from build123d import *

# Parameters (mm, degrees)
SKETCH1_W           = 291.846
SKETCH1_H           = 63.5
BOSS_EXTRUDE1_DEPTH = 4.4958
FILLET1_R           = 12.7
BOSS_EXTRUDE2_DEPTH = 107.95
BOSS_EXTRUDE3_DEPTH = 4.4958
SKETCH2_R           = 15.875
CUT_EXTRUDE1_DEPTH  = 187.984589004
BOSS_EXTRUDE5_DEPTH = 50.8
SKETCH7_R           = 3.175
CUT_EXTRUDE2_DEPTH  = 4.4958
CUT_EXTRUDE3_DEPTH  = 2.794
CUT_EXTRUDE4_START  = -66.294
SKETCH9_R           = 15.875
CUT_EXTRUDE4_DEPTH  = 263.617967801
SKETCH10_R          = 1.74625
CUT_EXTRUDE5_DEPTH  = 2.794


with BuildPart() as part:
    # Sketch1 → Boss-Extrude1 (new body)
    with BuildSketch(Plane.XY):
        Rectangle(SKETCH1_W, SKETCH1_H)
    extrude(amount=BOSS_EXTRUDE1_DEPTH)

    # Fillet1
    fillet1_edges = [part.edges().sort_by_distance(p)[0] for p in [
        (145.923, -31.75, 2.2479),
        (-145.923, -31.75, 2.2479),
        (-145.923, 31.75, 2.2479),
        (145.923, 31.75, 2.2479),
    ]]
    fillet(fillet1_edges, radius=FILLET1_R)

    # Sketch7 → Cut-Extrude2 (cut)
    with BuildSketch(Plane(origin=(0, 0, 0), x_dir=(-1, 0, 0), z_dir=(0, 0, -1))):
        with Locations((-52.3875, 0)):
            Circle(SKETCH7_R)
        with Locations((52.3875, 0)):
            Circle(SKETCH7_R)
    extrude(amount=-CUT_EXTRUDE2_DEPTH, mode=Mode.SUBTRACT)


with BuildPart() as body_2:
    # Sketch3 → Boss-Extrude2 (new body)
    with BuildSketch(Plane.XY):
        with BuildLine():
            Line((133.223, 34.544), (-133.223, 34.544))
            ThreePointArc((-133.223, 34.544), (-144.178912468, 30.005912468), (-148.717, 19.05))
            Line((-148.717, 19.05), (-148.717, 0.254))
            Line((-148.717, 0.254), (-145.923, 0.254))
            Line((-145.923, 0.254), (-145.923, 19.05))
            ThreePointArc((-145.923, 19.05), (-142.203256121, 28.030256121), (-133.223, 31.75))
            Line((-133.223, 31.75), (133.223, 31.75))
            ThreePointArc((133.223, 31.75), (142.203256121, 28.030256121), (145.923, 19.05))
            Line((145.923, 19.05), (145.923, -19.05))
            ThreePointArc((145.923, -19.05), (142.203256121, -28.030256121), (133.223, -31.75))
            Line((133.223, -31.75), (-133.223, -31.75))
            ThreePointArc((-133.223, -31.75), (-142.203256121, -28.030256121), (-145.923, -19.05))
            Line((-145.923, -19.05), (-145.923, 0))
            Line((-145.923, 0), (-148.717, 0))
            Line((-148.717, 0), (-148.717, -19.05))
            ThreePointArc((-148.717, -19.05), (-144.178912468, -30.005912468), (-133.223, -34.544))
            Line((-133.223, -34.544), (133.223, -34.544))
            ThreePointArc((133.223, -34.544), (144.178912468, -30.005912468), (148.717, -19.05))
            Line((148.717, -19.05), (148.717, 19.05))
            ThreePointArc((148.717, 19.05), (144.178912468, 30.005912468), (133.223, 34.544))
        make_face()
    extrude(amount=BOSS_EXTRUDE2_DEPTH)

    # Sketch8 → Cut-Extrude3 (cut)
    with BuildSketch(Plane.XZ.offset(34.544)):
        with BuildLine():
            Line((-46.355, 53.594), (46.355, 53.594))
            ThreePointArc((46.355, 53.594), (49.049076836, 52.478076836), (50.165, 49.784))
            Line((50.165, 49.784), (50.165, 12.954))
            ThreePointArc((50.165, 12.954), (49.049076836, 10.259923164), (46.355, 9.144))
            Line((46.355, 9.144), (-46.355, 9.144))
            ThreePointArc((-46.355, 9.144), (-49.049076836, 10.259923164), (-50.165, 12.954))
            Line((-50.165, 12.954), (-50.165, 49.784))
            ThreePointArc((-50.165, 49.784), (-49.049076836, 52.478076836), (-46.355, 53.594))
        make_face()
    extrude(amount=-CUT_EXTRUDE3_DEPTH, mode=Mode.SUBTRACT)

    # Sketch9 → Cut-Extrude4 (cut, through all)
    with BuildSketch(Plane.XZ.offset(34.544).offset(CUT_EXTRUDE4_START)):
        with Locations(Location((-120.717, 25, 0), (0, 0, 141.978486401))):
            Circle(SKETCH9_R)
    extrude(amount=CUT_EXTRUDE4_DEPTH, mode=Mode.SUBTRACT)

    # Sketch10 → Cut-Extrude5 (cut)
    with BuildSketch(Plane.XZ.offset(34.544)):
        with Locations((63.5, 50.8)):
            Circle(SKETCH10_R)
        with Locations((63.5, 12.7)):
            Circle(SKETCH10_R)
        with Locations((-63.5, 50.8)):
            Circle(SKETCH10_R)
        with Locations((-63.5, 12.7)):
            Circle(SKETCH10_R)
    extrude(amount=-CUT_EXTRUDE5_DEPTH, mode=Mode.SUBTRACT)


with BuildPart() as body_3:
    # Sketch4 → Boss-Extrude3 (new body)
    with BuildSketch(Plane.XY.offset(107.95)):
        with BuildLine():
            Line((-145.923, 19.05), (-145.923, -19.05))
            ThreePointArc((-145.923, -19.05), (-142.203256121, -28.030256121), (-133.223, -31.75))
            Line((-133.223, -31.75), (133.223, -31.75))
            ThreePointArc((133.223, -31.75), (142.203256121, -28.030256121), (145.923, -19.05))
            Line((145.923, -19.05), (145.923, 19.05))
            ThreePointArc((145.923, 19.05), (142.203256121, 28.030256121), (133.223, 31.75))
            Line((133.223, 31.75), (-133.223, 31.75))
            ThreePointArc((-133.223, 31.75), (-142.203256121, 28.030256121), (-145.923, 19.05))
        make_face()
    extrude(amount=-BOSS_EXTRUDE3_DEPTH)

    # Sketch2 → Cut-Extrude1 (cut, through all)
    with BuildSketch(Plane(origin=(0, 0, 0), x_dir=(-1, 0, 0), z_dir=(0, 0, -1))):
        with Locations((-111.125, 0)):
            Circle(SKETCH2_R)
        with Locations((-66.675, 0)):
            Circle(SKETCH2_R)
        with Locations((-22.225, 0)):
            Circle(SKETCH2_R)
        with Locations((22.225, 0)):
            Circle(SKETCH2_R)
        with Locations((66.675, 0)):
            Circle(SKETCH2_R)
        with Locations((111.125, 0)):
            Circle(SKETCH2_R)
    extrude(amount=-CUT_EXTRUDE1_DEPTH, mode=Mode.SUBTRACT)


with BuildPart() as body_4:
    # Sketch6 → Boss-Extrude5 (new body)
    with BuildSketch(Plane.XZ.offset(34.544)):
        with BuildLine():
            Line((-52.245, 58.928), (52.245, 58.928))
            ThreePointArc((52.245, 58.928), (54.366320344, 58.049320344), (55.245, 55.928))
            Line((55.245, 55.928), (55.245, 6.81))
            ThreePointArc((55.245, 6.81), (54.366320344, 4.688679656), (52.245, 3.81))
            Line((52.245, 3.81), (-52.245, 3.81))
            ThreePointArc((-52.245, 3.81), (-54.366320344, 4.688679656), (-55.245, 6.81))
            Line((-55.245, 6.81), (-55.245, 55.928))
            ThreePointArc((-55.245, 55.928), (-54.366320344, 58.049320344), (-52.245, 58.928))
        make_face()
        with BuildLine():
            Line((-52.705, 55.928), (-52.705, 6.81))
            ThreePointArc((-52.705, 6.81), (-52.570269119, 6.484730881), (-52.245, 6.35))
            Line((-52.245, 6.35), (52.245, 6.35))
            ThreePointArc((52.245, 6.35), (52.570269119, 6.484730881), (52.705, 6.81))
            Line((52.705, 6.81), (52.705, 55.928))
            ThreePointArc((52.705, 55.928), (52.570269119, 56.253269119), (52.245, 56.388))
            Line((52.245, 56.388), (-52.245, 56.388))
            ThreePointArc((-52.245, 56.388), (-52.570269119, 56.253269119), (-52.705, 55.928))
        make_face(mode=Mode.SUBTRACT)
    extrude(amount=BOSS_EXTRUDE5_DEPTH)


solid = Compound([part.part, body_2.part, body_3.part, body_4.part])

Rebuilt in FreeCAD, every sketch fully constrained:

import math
import FreeCAD as App
import Part
import Sketcher
from FreeCAD import Vector
Q = App.Units.Quantity


def edges_at(feature, points):
    """Names of the edges that pass closest to the given points."""
    edges = feature.Shape.Edges
    near = lambda p: min(range(len(edges)), key=lambda i: edges[i].distToShape(Part.Vertex(*p))[0])
    return sorted({f"Edge{near(p) + 1}" for p in points})

doc = App.newDocument("Part")
body = doc.addObject("PartDesign::Body", "Body")

# Sketch on XY plane
sketch1 = body.newObject("Sketcher::SketchObject", "Sketch")
sketch1.AttachmentSupport = (doc.getObject("XY_Plane"), [""])
sketch1.MapMode = "FlatFace"
sketch1.addGeometry([
    Part.LineSegment(Vector(-146, 32, 0), Vector(-146, -32, 0)),
    Part.LineSegment(Vector(-146, -32, 0), Vector(146, -32, 0)),
    Part.LineSegment(Vector(146, -32, 0), Vector(146, 32, 0)),
    Part.LineSegment(Vector(146, 32, 0), Vector(-146, 32, 0)),
], False)
sketch1.addConstraint([
    Sketcher.Constraint("Coincident", 0, 2, 1, 1),
    Sketcher.Constraint("Coincident", 1, 2, 2, 1),
    Sketcher.Constraint("Coincident", 2, 2, 3, 1),
    Sketcher.Constraint("Coincident", 3, 2, 0, 1),
    Sketcher.Constraint("Vertical", 0),
    Sketcher.Constraint("Horizontal", 1),
    Sketcher.Constraint("Vertical", 2),
    Sketcher.Constraint("Horizontal", 3),
    Sketcher.Constraint("Symmetric", 0, 2, 2, 2, -1, 1),
    Sketcher.Constraint("DistanceY", 0, 2, 0, 1, Q("2.5 in")),
    Sketcher.Constraint("DistanceX", 1, 1, 1, 2, Q("11.49 in")),
])
pad1 = body.newObject("PartDesign::Pad", "Pad")
pad1.Profile = sketch1
pad1.Length = Q("0.177 in")
doc.recompute()

fillet = body.newObject("PartDesign::Fillet", "Fillet")
fillet.Base = (pad1, edges_at(pad1, [
    (145.923, -31.75, 2.248),
    (-145.923, -31.75, 2.248),
    (-145.923, 31.75, 2.248),
    (145.923, 31.75, 2.248),
]))
fillet.Radius = Q("0.5 in")

# Sketch on XY plane
sketch2 = body.newObject("Sketcher::SketchObject", "Sketch001")
sketch2.AttachmentSupport = (doc.getObject("XY_Plane"), [""])
sketch2.MapMode = "FlatFace"
sketch2.addGeometry([
    Part.Circle(Vector(52.4, 0, 0), Vector(0, 0, 1), 3.2),
    Part.Circle(Vector(-52.4, 0, 0), Vector(0, 0, 1), 3.2),
], False)
sketch2.addConstraint([
    Sketcher.Constraint("Equal", 0, 1),
    Sketcher.Constraint("Symmetric", 0, 3, 1, 3, -1, 1),
    Sketcher.Constraint("PointOnObject", 0, 3, -1),
    Sketcher.Constraint("Diameter", 0, Q("0.25 in")),
    Sketcher.Constraint("DistanceX", -1, 1, 0, 3, Q("2.0625 in")),
])
pocket1 = body.newObject("PartDesign::Pocket", "Pocket")
pocket1.Profile = sketch2
pocket1.Length = Q("0.177 in")
pocket1.Reversed = True
body2 = doc.addObject("PartDesign::Body", "Body001")

# Sketch on XY plane
sketch3 = body2.newObject("Sketcher::SketchObject", "Sketch002")
sketch3.AttachmentSupport = (doc.getObject("XY_Plane001"), [""])
sketch3.MapMode = "FlatFace"
sketch3.addGeometry([
    Part.LineSegment(Vector(133.2, 34.5, 0), Vector(-133.2, 34.5, 0)),  # 0
    Part.ArcOfCircle(Part.Circle(Vector(-133.2, 19.1, 0), Vector(0, 0, 1), 15.5), math.radians(90), math.radians(180)),  # 1
    Part.LineSegment(Vector(-148.7, 19.1, 0), Vector(-148.7, 0.3, 0)),  # 2
    Part.LineSegment(Vector(-148.7, 0.3, 0), Vector(-145.9, 0.3, 0)),  # 3
    Part.LineSegment(Vector(-145.9, 0.3, 0), Vector(-145.9, 19.1, 0)),  # 4
    Part.ArcOfCircle(Part.Circle(Vector(-133.2, 19.1, 0), Vector(0, 0, 1), 12.7), math.radians(90), math.radians(180)),  # 5
    Part.LineSegment(Vector(-133.2, 31.8, 0), Vector(133.2, 31.8, 0)),  # 6
    Part.ArcOfCircle(Part.Circle(Vector(133.2, 19.1, 0), Vector(0, 0, 1), 12.7), math.radians(0), math.radians(90)),  # 7
    Part.LineSegment(Vector(145.9, 19.1, 0), Vector(145.9, -19.1, 0)),  # 8
    Part.ArcOfCircle(Part.Circle(Vector(133.2, -19.1, 0), Vector(0, 0, 1), 12.7), math.radians(-90), math.radians(0)),  # 9
    Part.LineSegment(Vector(133.2, -31.8, 0), Vector(-133.2, -31.8, 0)),  # 10
    Part.ArcOfCircle(Part.Circle(Vector(-133.2, -19.1, 0), Vector(0, 0, 1), 12.7), math.radians(180), math.radians(270)),  # 11
    Part.LineSegment(Vector(-145.9, -19.1, 0), Vector(-145.9, 0, 0)),  # 12
    Part.LineSegment(Vector(-145.9, 0, 0), Vector(-148.7, 0, 0)),  # 13
    Part.LineSegment(Vector(-148.7, 0, 0), Vector(-148.7, -19.1, 0)),  # 14
    Part.ArcOfCircle(Part.Circle(Vector(-133.2, -19.1, 0), Vector(0, 0, 1), 15.5), math.radians(180), math.radians(270)),  # 15
    Part.LineSegment(Vector(-133.2, -34.5, 0), Vector(133.2, -34.5, 0)),  # 16
    Part.ArcOfCircle(Part.Circle(Vector(133.2, -19.1, 0), Vector(0, 0, 1), 15.5), math.radians(-90), math.radians(0)),  # 17
    Part.LineSegment(Vector(148.7, -19.1, 0), Vector(148.7, 19.1, 0)),  # 18
    Part.ArcOfCircle(Part.Circle(Vector(133.2, 19.1, 0), Vector(0, 0, 1), 15.5), math.radians(0), math.radians(90)),  # 19
], False)
sketch3.addConstraint([
    Sketcher.Constraint("Tangent", 0, 2, 1, 1),
    Sketcher.Constraint("Tangent", 1, 2, 2, 1),
    Sketcher.Constraint("Coincident", 2, 2, 3, 1),
    Sketcher.Constraint("Coincident", 3, 2, 4, 1),
    Sketcher.Constraint("Tangent", 4, 2, 5, 2),
    Sketcher.Constraint("Tangent", 5, 1, 6, 1),
    Sketcher.Constraint("Tangent", 6, 2, 7, 2),
    Sketcher.Constraint("Tangent", 7, 1, 8, 1),
    Sketcher.Constraint("Tangent", 8, 2, 9, 2),
    Sketcher.Constraint("Tangent", 9, 1, 10, 1),
    Sketcher.Constraint("Tangent", 10, 2, 11, 2),
    Sketcher.Constraint("Tangent", 11, 1, 12, 1),
    Sketcher.Constraint("Coincident", 12, 2, 13, 1),
    Sketcher.Constraint("Coincident", 13, 2, 14, 1),
    Sketcher.Constraint("Tangent", 14, 2, 15, 1),
    Sketcher.Constraint("Tangent", 15, 2, 16, 1),
    Sketcher.Constraint("Tangent", 16, 2, 17, 1),
    Sketcher.Constraint("Tangent", 17, 2, 18, 1),
    Sketcher.Constraint("Tangent", 18, 2, 19, 1),
    Sketcher.Constraint("Tangent", 19, 2, 0, 1),
    Sketcher.Constraint("Horizontal", 0),
    Sketcher.Constraint("Vertical", 2),
    Sketcher.Constraint("Horizontal", 3),
    Sketcher.Constraint("Vertical", 4),
    Sketcher.Constraint("Horizontal", 6),
    Sketcher.Constraint("Vertical", 8),
    Sketcher.Constraint("Horizontal", 10),
    Sketcher.Constraint("Vertical", 12),
    Sketcher.Constraint("Horizontal", 13),
    Sketcher.Constraint("Vertical", 14),
    Sketcher.Constraint("Horizontal", 16),
    Sketcher.Constraint("Vertical", 18),
    Sketcher.Constraint("Coincident", 5, 3, 1, 3),
    Sketcher.Constraint("Coincident", 15, 3, 11, 3),
    Sketcher.Constraint("Coincident", 17, 3, 9, 3),
    Sketcher.Constraint("Coincident", 19, 3, 7, 3),
    Sketcher.Constraint("Equal", 5, 7),
    Sketcher.Constraint("Equal", 7, 9),
    Sketcher.Constraint("Equal", 9, 11),
    Sketcher.Constraint("Symmetric", 1, 3, 9, 3, -1, 1),
    Sketcher.Constraint("PointOnObject", 12, 2, -1),
    Sketcher.Constraint("Vertical", 5, 3, 11, 3),
    Sketcher.Constraint("Radius", 5, Q("0.5 in")),
    Sketcher.Constraint("Radius", 1, Q("0.61 in")),
    Sketcher.Constraint("DistanceY", 8, 2, 8, 1, Q("1.5 in")),
    Sketcher.Constraint("DistanceX", 0, 2, 0, 1, Q("10.49 in")),
    Sketcher.Constraint("DistanceY", 2, 2, 2, 1, Q("0.74 in")),
])
pad2 = body2.newObject("PartDesign::Pad", "Pad001")
pad2.Profile = sketch3
pad2.Length = Q("4.25 in")

# Sketch on XZ plane
sketch4 = body2.newObject("Sketcher::SketchObject", "Sketch003")
sketch4.AttachmentSupport = (doc.getObject("XZ_Plane001"), [""])
sketch4.MapMode = "FlatFace"
sketch4.AttachmentOffset = App.Placement(Vector(0, 0, 1.36 * 25.4), App.Rotation())
sketch4.addGeometry([
    Part.LineSegment(Vector(46.4, 53.6, 0), Vector(-46.4, 53.6, 0)),  # 0
    Part.ArcOfCircle(Part.Circle(Vector(-46.4, 49.8, 0), Vector(0, 0, 1), 3.8), math.radians(90), math.radians(180)),  # 1
    Part.LineSegment(Vector(-50.2, 49.8, 0), Vector(-50.2, 13, 0)),  # 2
    Part.ArcOfCircle(Part.Circle(Vector(-46.4, 13, 0), Vector(0, 0, 1), 3.8), math.radians(-180), math.radians(-90)),  # 3
    Part.LineSegment(Vector(-46.4, 9.1, 0), Vector(46.4, 9.1, 0)),  # 4
    Part.ArcOfCircle(Part.Circle(Vector(46.4, 13, 0), Vector(0, 0, 1), 3.8), math.radians(-90), math.radians(0)),  # 5
    Part.LineSegment(Vector(50.2, 13, 0), Vector(50.2, 49.8, 0)),  # 6
    Part.ArcOfCircle(Part.Circle(Vector(46.4, 49.8, 0), Vector(0, 0, 1), 3.8), math.radians(0), math.radians(90)),  # 7
], False)
sketch4.addConstraint([
    Sketcher.Constraint("Tangent", 0, 2, 1, 1),
    Sketcher.Constraint("Tangent", 1, 2, 2, 1),
    Sketcher.Constraint("Tangent", 2, 2, 3, 1),
    Sketcher.Constraint("Tangent", 3, 2, 4, 1),
    Sketcher.Constraint("Tangent", 4, 2, 5, 1),
    Sketcher.Constraint("Tangent", 5, 2, 6, 1),
    Sketcher.Constraint("Tangent", 6, 2, 7, 1),
    Sketcher.Constraint("Tangent", 7, 2, 0, 1),
    Sketcher.Constraint("Horizontal", 0),
    Sketcher.Constraint("Vertical", 2),
    Sketcher.Constraint("Horizontal", 4),
    Sketcher.Constraint("Vertical", 6),
    Sketcher.Constraint("Equal", 1, 3),
    Sketcher.Constraint("Equal", 3, 5),
    Sketcher.Constraint("Equal", 5, 7),
    Sketcher.Constraint("Radius", 1, Q("0.15 in")),
    Sketcher.Constraint("DistanceX", 0, 2, 0, 1, Q("3.65 in")),
    Sketcher.Constraint("DistanceY", 2, 2, 2, 1, Q("1.45 in")),
    Sketcher.Constraint("DistanceY", -1, 1, 1, 3, Q("1.96 in")),
    Sketcher.Constraint("DistanceX", 1, 3, -1, 1, Q("1.825 in")),
])
pocket2 = body2.newObject("PartDesign::Pocket", "Pocket001")
pocket2.Profile = sketch4
pocket2.Length = Q("0.11 in")

# Sketch on XZ plane
sketch5 = body2.newObject("Sketcher::SketchObject", "Sketch004")
sketch5.AttachmentSupport = (doc.getObject("XZ_Plane001"), [""])
sketch5.MapMode = "FlatFace"
sketch5.AttachmentOffset = App.Placement(Vector(0, 0, -1.25 * 25.4), App.Rotation())
sketch5.addGeometry(Part.Circle(Vector(-121, 25, 0), Vector(0, 0, 1), 16), False)
sketch5.addConstraint([
    Sketcher.Constraint("Diameter", 0, Q("1.25 in")),
    Sketcher.Constraint("DistanceX", 0, 3, -1, 1, Q("120.717 mm")),
    Sketcher.Constraint("DistanceY", -1, 1, 0, 3, Q("25 mm")),
])
pocket3 = body2.newObject("PartDesign::Pocket", "Pocket002")
pocket3.Profile = sketch5
pocket3.Type = "ThroughAll"
pocket3.Reversed = True

# Sketch on XZ plane
sketch6 = body2.newObject("Sketcher::SketchObject", "Sketch005")
sketch6.AttachmentSupport = (doc.getObject("XZ_Plane001"), [""])
sketch6.MapMode = "FlatFace"
sketch6.AttachmentOffset = App.Placement(Vector(0, 0, 1.36 * 25.4), App.Rotation())
sketch6.addGeometry([
    Part.Circle(Vector(63.5, 50.8, 0), Vector(0, 0, 1), 1.7),
    Part.Circle(Vector(63.5, 12.7, 0), Vector(0, 0, 1), 1.7),
    Part.Circle(Vector(-63.5, 50.8, 0), Vector(0, 0, 1), 1.7),
    Part.Circle(Vector(-63.5, 12.7, 0), Vector(0, 0, 1), 1.7),
], False)
sketch6.addConstraint([
    Sketcher.Constraint("Equal", 0, 1),
    Sketcher.Constraint("Equal", 1, 2),
    Sketcher.Constraint("Equal", 2, 3),
    Sketcher.Constraint("Symmetric", 0, 3, 2, 3, -2),
    Sketcher.Constraint("Symmetric", 1, 3, 3, 3, -2),
    Sketcher.Constraint("Vertical", 0, 3, 1, 3),
    Sketcher.Constraint("DistanceY", -1, 1, 0, 3, Q("2 in")),
    Sketcher.Constraint("DistanceX", 2, 3, 0, 3, Q("5 in")),
    Sketcher.Constraint("Diameter", 0, Q("0.1375 in")),
    Sketcher.Constraint("DistanceY", -1, 1, 1, 3, Q("0.5 in")),
])
pocket4 = body2.newObject("PartDesign::Pocket", "Pocket003")
pocket4.Profile = sketch6
pocket4.Length = Q("0.11 in")
body3 = doc.addObject("PartDesign::Body", "Body002")

# Sketch on XY plane
sketch7 = body3.newObject("Sketcher::SketchObject", "Sketch006")
sketch7.AttachmentSupport = (doc.getObject("XY_Plane002"), [""])
sketch7.MapMode = "FlatFace"
sketch7.AttachmentOffset = App.Placement(Vector(0, 0, 4.25 * 25.4), App.Rotation())
sketch7.addGeometry([
    Part.LineSegment(Vector(-146, 19, 0), Vector(-146, -19, 0)),  # 0
    Part.ArcOfCircle(Part.Circle(Vector(-133, -19, 0), Vector(0, 0, 1), 13), math.radians(180), math.radians(270)),  # 1
    Part.LineSegment(Vector(-133, -32, 0), Vector(133, -32, 0)),  # 2
    Part.ArcOfCircle(Part.Circle(Vector(133, -19, 0), Vector(0, 0, 1), 13), math.radians(-90), math.radians(0)),  # 3
    Part.LineSegment(Vector(146, -19, 0), Vector(146, 19, 0)),  # 4
    Part.ArcOfCircle(Part.Circle(Vector(133, 19, 0), Vector(0, 0, 1), 13), math.radians(0), math.radians(90)),  # 5
    Part.LineSegment(Vector(133, 32, 0), Vector(-133, 32, 0)),  # 6
    Part.ArcOfCircle(Part.Circle(Vector(-133, 19, 0), Vector(0, 0, 1), 13), math.radians(90), math.radians(180)),  # 7
], False)
sketch7.addConstraint([
    Sketcher.Constraint("Tangent", 0, 2, 1, 1),
    Sketcher.Constraint("Tangent", 1, 2, 2, 1),
    Sketcher.Constraint("Tangent", 2, 2, 3, 1),
    Sketcher.Constraint("Tangent", 3, 2, 4, 1),
    Sketcher.Constraint("Tangent", 4, 2, 5, 1),
    Sketcher.Constraint("Tangent", 5, 2, 6, 1),
    Sketcher.Constraint("Tangent", 6, 2, 7, 1),
    Sketcher.Constraint("Tangent", 7, 2, 0, 1),
    Sketcher.Constraint("Vertical", 0),
    Sketcher.Constraint("Horizontal", 2),
    Sketcher.Constraint("Vertical", 4),
    Sketcher.Constraint("Horizontal", 6),
    Sketcher.Constraint("Equal", 1, 3),
    Sketcher.Constraint("Equal", 3, 5),
    Sketcher.Constraint("Equal", 5, 7),
    Sketcher.Constraint("Symmetric", 1, 3, 5, 3, -1, 1),
    Sketcher.Constraint("Radius", 1, Q("0.5 in")),
    Sketcher.Constraint("DistanceY", 0, 2, 0, 1, Q("1.5 in")),
    Sketcher.Constraint("DistanceX", 2, 1, 2, 2, Q("10.49 in")),
])
pad3 = body3.newObject("PartDesign::Pad", "Pad002")
pad3.Profile = sketch7
pad3.Length = Q("0.177 in")
pad3.Reversed = True

# Sketch on XY plane
sketch8 = body3.newObject("Sketcher::SketchObject", "Sketch007")
sketch8.AttachmentSupport = (doc.getObject("XY_Plane002"), [""])
sketch8.MapMode = "FlatFace"
sketch8.addGeometry([
    Part.Circle(Vector(111, 0, 0), Vector(0, 0, 1), 16),  # 0
    Part.Circle(Vector(67, 0, 0), Vector(0, 0, 1), 16),  # 1
    Part.Circle(Vector(22, 0, 0), Vector(0, 0, 1), 16),  # 2
    Part.Circle(Vector(-22, 0, 0), Vector(0, 0, 1), 16),  # 3
    Part.Circle(Vector(-67, 0, 0), Vector(0, 0, 1), 16),  # 4
    Part.Circle(Vector(-111, 0, 0), Vector(0, 0, 1), 16),  # 5
], False)
sketch8.addConstraint([
    Sketcher.Constraint("Equal", 0, 1),
    Sketcher.Constraint("Equal", 1, 2),
    Sketcher.Constraint("Equal", 2, 3),
    Sketcher.Constraint("Equal", 3, 4),
    Sketcher.Constraint("Equal", 4, 5),
    Sketcher.Constraint("Symmetric", 2, 3, 3, 3, -1, 1),
    Sketcher.Constraint("Symmetric", 1, 3, 4, 3, -1, 1),
    Sketcher.Constraint("Symmetric", 0, 3, 5, 3, -1, 1),
    Sketcher.Constraint("PointOnObject", 0, 3, -1),
    Sketcher.Constraint("PointOnObject", 1, 3, -1),
    Sketcher.Constraint("PointOnObject", 2, 3, -1),
    Sketcher.Constraint("Diameter", 0, Q("1.25 in")),
    Sketcher.Constraint("DistanceX", 4, 3, 0, 3, Q("7 in")),
    Sketcher.Constraint("DistanceX", 2, 3, 0, 3, Q("3.5 in")),
    Sketcher.Constraint("DistanceX", 1, 3, 0, 3, Q("1.75 in")),
])
pocket5 = body3.newObject("PartDesign::Pocket", "Pocket004")
pocket5.Profile = sketch8
pocket5.Type = "ThroughAll"
pocket5.Reversed = True
body4 = doc.addObject("PartDesign::Body", "Body003")

# Sketch on XZ plane
sketch9 = body4.newObject("Sketcher::SketchObject", "Sketch008")
sketch9.AttachmentSupport = (doc.getObject("XZ_Plane003"), [""])
sketch9.MapMode = "FlatFace"
sketch9.AttachmentOffset = App.Placement(Vector(0, 0, 1.36 * 25.4), App.Rotation())
sketch9.addGeometry([
    Part.LineSegment(Vector(52.24, 58.93, 0), Vector(-52.24, 58.93, 0)),  # 0
    Part.ArcOfCircle(Part.Circle(Vector(-52.25, 55.93, 0), Vector(0, 0, 1), 3), math.radians(90), math.radians(180)),  # 1
    Part.LineSegment(Vector(-55.24, 55.93, 0), Vector(-55.24, 6.81, 0)),  # 2
    Part.ArcOfCircle(Part.Circle(Vector(-52.25, 6.81, 0), Vector(0, 0, 1), 3), math.radians(180), math.radians(270)),  # 3
    Part.LineSegment(Vector(-52.24, 3.81, 0), Vector(52.24, 3.81, 0)),  # 4
    Part.ArcOfCircle(Part.Circle(Vector(52.25, 6.81, 0), Vector(0, 0, 1), 3), math.radians(-90), math.radians(0)),  # 5
    Part.LineSegment(Vector(55.24, 6.81, 0), Vector(55.24, 55.93, 0)),  # 6
    Part.ArcOfCircle(Part.Circle(Vector(52.25, 55.93, 0), Vector(0, 0, 1), 3), math.radians(0), math.radians(90)),  # 7
    Part.ArcOfCircle(Part.Circle(Vector(-52.24, 55.93, 0), Vector(0, 0, 1), 0.46), math.radians(90), math.radians(180)),  # 8
    Part.LineSegment(Vector(-52.24, 56.39, 0), Vector(52.24, 56.39, 0)),  # 9
    Part.ArcOfCircle(Part.Circle(Vector(52.24, 55.93, 0), Vector(0, 0, 1), 0.46), math.radians(0), math.radians(90)),  # 10
    Part.LineSegment(Vector(52.7, 55.93, 0), Vector(52.7, 6.81, 0)),  # 11
    Part.ArcOfCircle(Part.Circle(Vector(52.24, 6.81, 0), Vector(0, 0, 1), 0.46), math.radians(-90), math.radians(0)),  # 12
    Part.LineSegment(Vector(52.24, 6.35, 0), Vector(-52.24, 6.35, 0)),  # 13
    Part.ArcOfCircle(Part.Circle(Vector(-52.24, 6.81, 0), Vector(0, 0, 1), 0.46), math.radians(-180), math.radians(-90)),  # 14
    Part.LineSegment(Vector(-52.7, 6.81, 0), Vector(-52.7, 55.93, 0)),  # 15
], False)
sketch9.addConstraint([
    Sketcher.Constraint("Tangent", 0, 2, 1, 1),
    Sketcher.Constraint("Tangent", 1, 2, 2, 1),
    Sketcher.Constraint("Tangent", 2, 2, 3, 1),
    Sketcher.Constraint("Tangent", 3, 2, 4, 1),
    Sketcher.Constraint("Tangent", 4, 2, 5, 1),
    Sketcher.Constraint("Tangent", 5, 2, 6, 1),
    Sketcher.Constraint("Tangent", 6, 2, 7, 1),
    Sketcher.Constraint("Tangent", 7, 2, 0, 1),
    Sketcher.Constraint("Tangent", 8, 1, 9, 1),
    Sketcher.Constraint("Tangent", 9, 2, 10, 2),
    Sketcher.Constraint("Tangent", 10, 1, 11, 1),
    Sketcher.Constraint("Tangent", 11, 2, 12, 2),
    Sketcher.Constraint("Tangent", 12, 1, 13, 1),
    Sketcher.Constraint("Tangent", 13, 2, 14, 2),
    Sketcher.Constraint("Tangent", 14, 1, 15, 1),
    Sketcher.Constraint("Tangent", 15, 2, 8, 2),
    Sketcher.Constraint("Horizontal", 0),
    Sketcher.Constraint("Vertical", 2),
    Sketcher.Constraint("Horizontal", 4),
    Sketcher.Constraint("Vertical", 6),
    Sketcher.Constraint("Horizontal", 9),
    Sketcher.Constraint("Vertical", 11),
    Sketcher.Constraint("Horizontal", 13),
    Sketcher.Constraint("Vertical", 15),
    Sketcher.Constraint("Coincident", 8, 3, 1, 3),
    Sketcher.Constraint("Coincident", 10, 3, 7, 3),
    Sketcher.Constraint("Coincident", 12, 3, 5, 3),
    Sketcher.Constraint("Equal", 1, 3),
    Sketcher.Constraint("Equal", 3, 5),
    Sketcher.Constraint("Equal", 5, 7),
    Sketcher.Constraint("Equal", 12, 14),
    Sketcher.Constraint("DistanceY", 8, 1, 0, 2, Q("0.1 in")),
    Sketcher.Constraint("DistanceY", -1, 1, 0, 2, Q("2.32 in")),
    Sketcher.Constraint("DistanceY", -1, 1, 3, 2, Q("0.15 in")),
    Sketcher.Constraint("Radius", 1, Q("3 mm")),
    Sketcher.Constraint("DistanceX", 1, 2, -1, 1, Q("2.175 in")),
    Sketcher.Constraint("DistanceX", -1, 1, 5, 2, Q("2.175 in")),
])
pad4 = body4.newObject("PartDesign::Pad", "Pad003")
pad4.Profile = sketch9
pad4.Length = Q("2 in")

doc.recompute()
